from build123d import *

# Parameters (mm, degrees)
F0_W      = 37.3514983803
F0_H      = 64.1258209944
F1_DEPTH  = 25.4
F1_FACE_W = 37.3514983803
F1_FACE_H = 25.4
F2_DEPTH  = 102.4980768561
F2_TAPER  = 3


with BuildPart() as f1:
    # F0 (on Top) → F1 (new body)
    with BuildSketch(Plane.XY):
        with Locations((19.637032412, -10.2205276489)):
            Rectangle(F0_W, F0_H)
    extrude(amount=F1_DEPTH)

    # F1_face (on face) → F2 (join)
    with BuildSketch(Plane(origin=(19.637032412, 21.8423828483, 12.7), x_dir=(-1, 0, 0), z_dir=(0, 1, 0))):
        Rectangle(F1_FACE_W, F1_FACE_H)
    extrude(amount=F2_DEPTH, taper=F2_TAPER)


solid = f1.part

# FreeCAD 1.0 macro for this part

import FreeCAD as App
import Part
import Sketcher

V = App.Vector
Q = App.Units.Quantity

doc = App.newDocument("Part")
body = doc.addObject("PartDesign::Body", "Body")

# Sketch on XY plane
sketch1 = body.newObject("Sketcher::SketchObject", "Sketch")
sketch1.AttachmentSupport = (doc.getObject("XY_Plane"), [""])
sketch1.MapMode = "FlatFace"
sketch1.addGeometry([
    Part.LineSegment(V(1, 22, 0), V(1, -42, 0)),
    Part.LineSegment(V(1, -42, 0), V(38, -42, 0)),
    Part.LineSegment(V(38, -42, 0), V(38, 22, 0)),
    Part.LineSegment(V(38, 22, 0), V(1, 22, 0)),
], False)
sketch1.addConstraint([
    Sketcher.Constraint("Coincident", 0, 2, 1, 1),
    Sketcher.Constraint("Coincident", 1, 2, 2, 1),
    Sketcher.Constraint("Coincident", 2, 2, 3, 1),
    Sketcher.Constraint("Coincident", 3, 2, 0, 1),
    Sketcher.Constraint("Vertical", 0),
    Sketcher.Constraint("Horizontal", 1),
    Sketcher.Constraint("Vertical", 2),
    Sketcher.Constraint("Horizontal", 3),
    Sketcher.Constraint("DistanceX", 1, 1, 1, 2, 37.351498),
    Sketcher.Constraint("DistanceY", 0, 2, 0, 1, 64.125821),
    Sketcher.Constraint("DistanceY", 0, 2, -1, 1, 42.283438),
    Sketcher.Constraint("DistanceX", -1, 1, 1, 2, 38.312782),
])
pad1 = body.newObject("PartDesign::Pad", "Pad")
pad1.Profile = sketch1
pad1.Length = Q("1 in")

# Sketch on XZ plane
sketch2 = body.newObject("Sketcher::SketchObject", "Sketch001")
sketch2.AttachmentSupport = (doc.getObject("XZ_Plane"), [""])
sketch2.MapMode = "FlatFace"
sketch2.AttachmentOffset = App.Placement(V(0, 0, -21.842383), App.Rotation())
sketch2.addGeometry([
    Part.LineSegment(V(38, 25, 0), V(38, 0, 0)),
    Part.LineSegment(V(38, 0, 0), V(1, 0, 0)),
    Part.LineSegment(V(1, 0, 0), V(1, 25, 0)),
    Part.LineSegment(V(1, 25, 0), V(38, 25, 0)),
], False)
sketch2.addConstraint([
    Sketcher.Constraint("Coincident", 0, 2, 1, 1),
    Sketcher.Constraint("Coincident", 1, 2, 2, 1),
    Sketcher.Constraint("Coincident", 2, 2, 3, 1),
    Sketcher.Constraint("Coincident", 3, 2, 0, 1),
    Sketcher.Constraint("Vertical", 0),
    Sketcher.Constraint("Horizontal", 1),
    Sketcher.Constraint("Vertical", 2),
    Sketcher.Constraint("Horizontal", 3),
    Sketcher.Constraint("PointOnObject", 0, 2, -1),
    Sketcher.Constraint("DistanceY", 0, 2, 0, 1, Q("1 in")),
    Sketcher.Constraint("DistanceX", 1, 2, 1, 1, 37.351498),
    Sketcher.Constraint("DistanceX", -1, 1, 0, 2, 38.312782),
])
pad2 = body.newObject("PartDesign::Pad", "Pad001")
pad2.Profile = sketch2
pad2.Length = 102.498077
pad2.Reversed = True
pad2.TaperAngle = -3

doc.recompute()
